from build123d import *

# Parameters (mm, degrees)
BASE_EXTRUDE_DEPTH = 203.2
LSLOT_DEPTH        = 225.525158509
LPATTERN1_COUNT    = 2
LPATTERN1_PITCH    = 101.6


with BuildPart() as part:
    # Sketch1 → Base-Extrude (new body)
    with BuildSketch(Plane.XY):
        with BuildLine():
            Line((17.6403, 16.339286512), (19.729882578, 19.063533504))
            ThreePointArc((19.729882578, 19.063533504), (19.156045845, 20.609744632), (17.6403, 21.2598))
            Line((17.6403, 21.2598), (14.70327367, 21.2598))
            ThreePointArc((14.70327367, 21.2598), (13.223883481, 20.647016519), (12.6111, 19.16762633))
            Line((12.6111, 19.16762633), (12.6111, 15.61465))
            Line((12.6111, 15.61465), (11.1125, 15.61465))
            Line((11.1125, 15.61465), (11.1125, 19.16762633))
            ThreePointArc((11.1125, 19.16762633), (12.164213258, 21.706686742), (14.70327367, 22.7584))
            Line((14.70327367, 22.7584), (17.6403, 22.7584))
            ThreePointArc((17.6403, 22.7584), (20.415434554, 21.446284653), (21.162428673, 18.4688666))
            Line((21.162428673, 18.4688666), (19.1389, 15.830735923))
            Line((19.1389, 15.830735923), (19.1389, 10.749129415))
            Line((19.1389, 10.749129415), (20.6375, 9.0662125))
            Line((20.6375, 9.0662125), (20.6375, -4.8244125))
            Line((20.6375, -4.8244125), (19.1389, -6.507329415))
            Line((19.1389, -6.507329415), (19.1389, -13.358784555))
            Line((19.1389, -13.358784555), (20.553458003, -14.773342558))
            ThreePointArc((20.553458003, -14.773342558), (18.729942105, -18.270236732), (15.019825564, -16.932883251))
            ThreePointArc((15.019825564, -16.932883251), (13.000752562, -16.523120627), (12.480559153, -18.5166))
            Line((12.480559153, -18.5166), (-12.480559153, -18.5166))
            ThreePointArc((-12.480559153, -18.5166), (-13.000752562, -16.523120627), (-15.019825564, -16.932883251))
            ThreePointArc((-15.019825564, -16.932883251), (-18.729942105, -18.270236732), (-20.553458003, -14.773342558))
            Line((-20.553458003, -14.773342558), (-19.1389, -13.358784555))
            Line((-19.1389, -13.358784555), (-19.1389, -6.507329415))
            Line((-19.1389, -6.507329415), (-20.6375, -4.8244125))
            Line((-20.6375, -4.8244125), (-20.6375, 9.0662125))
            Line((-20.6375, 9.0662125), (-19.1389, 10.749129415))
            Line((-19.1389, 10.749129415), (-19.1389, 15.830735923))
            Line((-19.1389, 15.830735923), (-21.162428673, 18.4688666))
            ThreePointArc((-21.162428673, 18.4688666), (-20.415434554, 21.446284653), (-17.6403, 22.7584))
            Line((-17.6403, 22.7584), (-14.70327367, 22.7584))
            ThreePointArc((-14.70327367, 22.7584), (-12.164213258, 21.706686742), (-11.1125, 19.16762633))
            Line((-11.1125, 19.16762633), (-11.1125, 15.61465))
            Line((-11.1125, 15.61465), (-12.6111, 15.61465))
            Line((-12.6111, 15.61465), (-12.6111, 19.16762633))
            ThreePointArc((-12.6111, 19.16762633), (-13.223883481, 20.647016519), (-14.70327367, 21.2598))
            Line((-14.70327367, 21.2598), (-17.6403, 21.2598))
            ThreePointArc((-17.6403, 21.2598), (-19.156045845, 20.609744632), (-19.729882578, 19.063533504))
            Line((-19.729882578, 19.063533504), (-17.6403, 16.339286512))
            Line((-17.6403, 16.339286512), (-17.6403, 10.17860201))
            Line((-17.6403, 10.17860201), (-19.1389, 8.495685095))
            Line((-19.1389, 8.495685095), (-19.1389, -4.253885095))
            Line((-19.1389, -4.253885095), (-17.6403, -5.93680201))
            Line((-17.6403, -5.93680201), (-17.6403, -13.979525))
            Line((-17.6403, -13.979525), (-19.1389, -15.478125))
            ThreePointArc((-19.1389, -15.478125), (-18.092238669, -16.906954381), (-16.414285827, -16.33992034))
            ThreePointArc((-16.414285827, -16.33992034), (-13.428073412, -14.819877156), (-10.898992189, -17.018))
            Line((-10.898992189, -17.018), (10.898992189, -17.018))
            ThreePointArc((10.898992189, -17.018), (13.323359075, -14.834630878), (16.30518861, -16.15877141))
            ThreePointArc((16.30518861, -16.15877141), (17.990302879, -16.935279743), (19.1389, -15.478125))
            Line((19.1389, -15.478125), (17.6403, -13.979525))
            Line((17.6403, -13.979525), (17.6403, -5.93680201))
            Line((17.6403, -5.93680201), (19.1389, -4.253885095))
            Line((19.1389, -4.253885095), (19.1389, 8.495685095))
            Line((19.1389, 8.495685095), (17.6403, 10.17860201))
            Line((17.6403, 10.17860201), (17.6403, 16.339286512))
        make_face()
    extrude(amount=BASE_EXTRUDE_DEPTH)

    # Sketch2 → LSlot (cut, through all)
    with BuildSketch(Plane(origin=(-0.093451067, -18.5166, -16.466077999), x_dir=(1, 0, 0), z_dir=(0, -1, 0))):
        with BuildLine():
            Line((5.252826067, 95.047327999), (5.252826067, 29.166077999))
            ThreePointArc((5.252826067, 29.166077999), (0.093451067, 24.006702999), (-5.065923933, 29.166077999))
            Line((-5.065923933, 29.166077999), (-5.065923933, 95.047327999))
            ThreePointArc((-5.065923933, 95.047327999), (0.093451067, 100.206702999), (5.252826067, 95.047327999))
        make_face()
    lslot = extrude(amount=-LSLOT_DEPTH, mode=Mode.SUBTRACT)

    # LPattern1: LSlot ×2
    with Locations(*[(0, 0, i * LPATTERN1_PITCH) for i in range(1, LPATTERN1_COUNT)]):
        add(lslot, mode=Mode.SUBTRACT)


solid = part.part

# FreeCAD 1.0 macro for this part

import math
import FreeCAD as App
import Part
import Sketcher
Q = App.Units.Quantity

doc = App.newDocument("Part")
body = doc.addObject("PartDesign::Body", "Body")

sketch1 = body.newObject("Sketcher::SketchObject", "Sketch")
sketch1.AttachmentSupport = (doc.getObject("XY_Plane"), [""])
sketch1.MapMode = "FlatFace"
sketch1.addGeometry([
    Part.LineSegment(App.Vector(19.7, 19.1, 0), App.Vector(17.6, 16.3, 0)),
    Part.LineSegment(App.Vector(17.6, 16.3, 0), App.Vector(17.6, 10.2, 0)),
    Part.LineSegment(App.Vector(17.6, 10.2, 0), App.Vector(19.1, 8.5, 0)),
    Part.LineSegment(App.Vector(19.1, 8.5, 0), App.Vector(19.1, -4.3, 0)),
    Part.LineSegment(App.Vector(19.1, -4.3, 0), App.Vector(17.6, -5.9, 0)),
    Part.LineSegment(App.Vector(17.6, -5.9, 0), App.Vector(17.6, -14, 0)),
    Part.LineSegment(App.Vector(17.6, -14, 0), App.Vector(19.1, -15.5, 0)),
    Part.ArcOfCircle(Part.Circle(App.Vector(17.6, -15.5, 0), App.Vector(0, 0, 1), 1.5), math.radians(-153), math.radians(0)),
    Part.ArcOfCircle(Part.Circle(App.Vector(13.8, -17.8, 0), App.Vector(0, 0, 1), 3), math.radians(33), math.radians(165)),
    Part.LineSegment(App.Vector(10.9, -17, 0), App.Vector(-10.9, -17, 0)),
    Part.ArcOfCircle(Part.Circle(App.Vector(-13.8, -17.8, 0), App.Vector(0, 0, 1), 3), math.radians(15), math.radians(151)),
    Part.ArcOfCircle(Part.Circle(App.Vector(-17.6, -15.5, 0), App.Vector(0, 0, 1), 1.5), math.radians(180), math.radians(325)),
    Part.LineSegment(App.Vector(-19.1, -15.5, 0), App.Vector(-17.6, -14, 0)),
    Part.LineSegment(App.Vector(-17.6, -14, 0), App.Vector(-17.6, -5.9, 0)),
    Part.LineSegment(App.Vector(-17.6, -5.9, 0), App.Vector(-19.1, -4.3, 0)),
    Part.LineSegment(App.Vector(-19.1, -4.3, 0), App.Vector(-19.1, 8.5, 0)),
    Part.LineSegment(App.Vector(-19.1, 8.5, 0), App.Vector(-17.6, 10.2, 0)),
    Part.LineSegment(App.Vector(-17.6, 10.2, 0), App.Vector(-17.6, 16.3, 0)),
    Part.LineSegment(App.Vector(-17.6, 16.3, 0), App.Vector(-19.7, 19.1, 0)),
    Part.ArcOfCircle(Part.Circle(App.Vector(-17.6, 19.2, 0), App.Vector(0, 0, 1), 2.1), math.radians(90), math.radians(183)),
    Part.LineSegment(App.Vector(-17.6, 21.3, 0), App.Vector(-14.7, 21.3, 0)),
    Part.ArcOfCircle(Part.Circle(App.Vector(-14.7, 19.2, 0), App.Vector(0, 0, 1), 2.1), math.radians(0), math.radians(90)),
    Part.LineSegment(App.Vector(-12.6, 19.2, 0), App.Vector(-12.6, 15.6, 0)),
    Part.LineSegment(App.Vector(-12.6, 15.6, 0), App.Vector(-11.1, 15.6, 0)),
    Part.LineSegment(App.Vector(-11.1, 15.6, 0), App.Vector(-11.1, 19.2, 0)),
    Part.ArcOfCircle(Part.Circle(App.Vector(-14.7, 19.2, 0), App.Vector(0, 0, 1), 3.6), math.radians(0), math.radians(90)),
    Part.LineSegment(App.Vector(-14.7, 22.8, 0), App.Vector(-17.6, 22.8, 0)),
    Part.ArcOfCircle(Part.Circle(App.Vector(-17.6, 19.2, 0), App.Vector(0, 0, 1), 3.6), math.radians(90), math.radians(191)),
    Part.LineSegment(App.Vector(-21.2, 18.5, 0), App.Vector(-19.1, 15.8, 0)),
    Part.LineSegment(App.Vector(-19.1, 15.8, 0), App.Vector(-19.1, 10.7, 0)),
    Part.LineSegment(App.Vector(-19.1, 10.7, 0), App.Vector(-20.6, 9.1, 0)),
    Part.LineSegment(App.Vector(-20.6, 9.1, 0), App.Vector(-20.6, -4.8, 0)),
    Part.LineSegment(App.Vector(-20.6, -4.8, 0), App.Vector(-19.1, -6.5, 0)),
    Part.LineSegment(App.Vector(-19.1, -6.5, 0), App.Vector(-19.1, -13.4, 0)),
    Part.LineSegment(App.Vector(-19.1, -13.4, 0), App.Vector(-20.6, -14.8, 0)),
    Part.ArcOfCircle(Part.Circle(App.Vector(-17.6, -15.5, 0), App.Vector(0, 0, 1), 3), math.radians(166), math.radians(331)),
    Part.ArcOfCircle(Part.Circle(App.Vector(-13.8, -17.8, 0), App.Vector(0, 0, 1), 1.5), math.radians(-29), math.radians(145)),
    Part.LineSegment(App.Vector(-12.5, -18.5, 0), App.Vector(12.5, -18.5, 0)),
    Part.ArcOfCircle(Part.Circle(App.Vector(13.8, -17.8, 0), App.Vector(0, 0, 1), 1.5), math.radians(35), math.radians(209)),
    Part.ArcOfCircle(Part.Circle(App.Vector(17.6, -15.5, 0), App.Vector(0, 0, 1), 3), math.radians(-151), math.radians(14)),
    Part.LineSegment(App.Vector(20.6, -14.8, 0), App.Vector(19.1, -13.4, 0)),
    Part.LineSegment(App.Vector(19.1, -13.4, 0), App.Vector(19.1, -6.5, 0)),
    Part.LineSegment(App.Vector(19.1, -6.5, 0), App.Vector(20.6, -4.8, 0)),
    Part.LineSegment(App.Vector(20.6, -4.8, 0), App.Vector(20.6, 9.1, 0)),
    Part.LineSegment(App.Vector(20.6, 9.1, 0), App.Vector(19.1, 10.7, 0)),
    Part.LineSegment(App.Vector(19.1, 10.7, 0), App.Vector(19.1, 15.8, 0)),
    Part.LineSegment(App.Vector(19.1, 15.8, 0), App.Vector(21.2, 18.5, 0)),
    Part.ArcOfCircle(Part.Circle(App.Vector(17.6, 19.2, 0), App.Vector(0, 0, 1), 3.6), math.radians(-11), math.radians(90)),
    Part.LineSegment(App.Vector(17.6, 22.8, 0), App.Vector(14.7, 22.8, 0)),
    Part.ArcOfCircle(Part.Circle(App.Vector(14.7, 19.2, 0), App.Vector(0, 0, 1), 3.6), math.radians(90), math.radians(180)),
    Part.LineSegment(App.Vector(11.1, 19.2, 0), App.Vector(11.1, 15.6, 0)),
    Part.LineSegment(App.Vector(11.1, 15.6, 0), App.Vector(12.6, 15.6, 0)),
    Part.LineSegment(App.Vector(12.6, 15.6, 0), App.Vector(12.6, 19.2, 0)),
    Part.ArcOfCircle(Part.Circle(App.Vector(14.7, 19.2, 0), App.Vector(0, 0, 1), 2.1), math.radians(90), math.radians(180)),
    Part.LineSegment(App.Vector(14.7, 21.3, 0), App.Vector(17.6, 21.3, 0)),
    Part.ArcOfCircle(Part.Circle(App.Vector(17.6, 19.2, 0), App.Vector(0, 0, 1), 2.1), math.radians(-3), math.radians(90)),
], False)
sketch1.addConstraint([
    Sketcher.Constraint("Coincident", 0, 2, 1, 1),
    Sketcher.Constraint("Coincident", 1, 2, 2, 1),
    Sketcher.Constraint("Coincident", 2, 2, 3, 1),
    Sketcher.Constraint("Coincident", 3, 2, 4, 1),
    Sketcher.Constraint("Coincident", 4, 2, 5, 1),
    Sketcher.Constraint("Coincident", 5, 2, 6, 1),
    Sketcher.Constraint("Coincident", 6, 2, 7, 2),
    Sketcher.Constraint("Coincident", 7, 1, 8, 1),
    Sketcher.Constraint("Coincident", 8, 2, 9, 1),
    Sketcher.Constraint("Coincident", 9, 2, 10, 1),
    Sketcher.Constraint("Coincident", 10, 2, 11, 2),
    Sketcher.Constraint("Coincident", 11, 1, 12, 1),
    Sketcher.Constraint("Coincident", 12, 2, 13, 1),
    Sketcher.Constraint("Coincident", 13, 2, 14, 1),
    Sketcher.Constraint("Coincident", 14, 2, 15, 1),
    Sketcher.Constraint("Coincident", 15, 2, 16, 1),
    Sketcher.Constraint("Coincident", 16, 2, 17, 1),
    Sketcher.Constraint("Coincident", 17, 2, 18, 1),
    Sketcher.Constraint("Coincident", 18, 2, 19, 2),
    Sketcher.Constraint("Tangent", 19, 1, 20, 1),
    Sketcher.Constraint("Tangent", 20, 2, 21, 2),
    Sketcher.Constraint("Tangent", 21, 1, 22, 1),
    Sketcher.Constraint("Coincident", 22, 2, 23, 1),
    Sketcher.Constraint("Coincident", 23, 2, 24, 1),
    Sketcher.Constraint("Tangent", 24, 2, 25, 1),
    Sketcher.Constraint("Tangent", 25, 2, 26, 1),
    Sketcher.Constraint("Tangent", 26, 2, 27, 1),
    Sketcher.Constraint("Coincident", 27, 2, 28, 1),
    Sketcher.Constraint("Coincident", 28, 2, 29, 1),
    Sketcher.Constraint("Coincident", 29, 2, 30, 1),
    Sketcher.Constraint("Coincident", 30, 2, 31, 1),
    Sketcher.Constraint("Coincident", 31, 2, 32, 1),
    Sketcher.Constraint("Coincident", 32, 2, 33, 1),
    Sketcher.Constraint("Coincident", 33, 2, 34, 1),
    Sketcher.Constraint("Coincident", 34, 2, 35, 1),
    Sketcher.Constraint("Coincident", 35, 2, 36, 2),
    Sketcher.Constraint("Coincident", 36, 1, 37, 1),
    Sketcher.Constraint("Coincident", 37, 2, 38, 2),
    Sketcher.Constraint("Coincident", 38, 1, 39, 1),
    Sketcher.Constraint("Coincident", 39, 2, 40, 1),
    Sketcher.Constraint("Coincident", 40, 2, 41, 1),
    Sketcher.Constraint("Coincident", 41, 2, 42, 1),
    Sketcher.Constraint("Coincident", 42, 2, 43, 1),
    Sketcher.Constraint("Coincident", 43, 2, 44, 1),
    Sketcher.Constraint("Coincident", 44, 2, 45, 1),
    Sketcher.Constraint("Coincident", 45, 2, 46, 1),
    Sketcher.Constraint("Coincident", 46, 2, 47, 1),
    Sketcher.Constraint("Tangent", 47, 2, 48, 1),
    Sketcher.Constraint("Tangent", 48, 2, 49, 1),
    Sketcher.Constraint("Tangent", 49, 2, 50, 1),
    Sketcher.Constraint("Coincident", 50, 2, 51, 1),
    Sketcher.Constraint("Coincident", 51, 2, 52, 1),
    Sketcher.Constraint("Tangent", 52, 2, 53, 2),
    Sketcher.Constraint("Tangent", 53, 1, 54, 1),
    Sketcher.Constraint("Tangent", 54, 2, 55, 2),
    Sketcher.Constraint("Coincident", 55, 1, 0, 1),
    Sketcher.Constraint("Vertical", 1),
    Sketcher.Constraint("Vertical", 3),
    Sketcher.Constraint("Vertical", 5),
    Sketcher.Constraint("Horizontal", 9),
    Sketcher.Constraint("Vertical", 13),
    Sketcher.Constraint("Vertical", 15),
    Sketcher.Constraint("Vertical", 17),
    Sketcher.Constraint("Horizontal", 20),
    Sketcher.Constraint("Vertical", 22),
    Sketcher.Constraint("Horizontal", 23),
    Sketcher.Constraint("Vertical", 24),
    Sketcher.Constraint("Horizontal", 26),
    Sketcher.Constraint("Vertical", 29),
    Sketcher.Constraint("Vertical", 31),
    Sketcher.Constraint("Vertical", 33),
    Sketcher.Constraint("Horizontal", 37),
    Sketcher.Constraint("Vertical", 41),
    Sketcher.Constraint("Vertical", 43),
    Sketcher.Constraint("Vertical", 45),
    Sketcher.Constraint("Horizontal", 48),
    Sketcher.Constraint("Vertical", 50),
    Sketcher.Constraint("Horizontal", 51),
    Sketcher.Constraint("Vertical", 52),
    Sketcher.Constraint("Horizontal", 54),
    Sketcher.Constraint("Coincident", 25, 3, 21, 3),
    Sketcher.Constraint("Coincident", 27, 3, 19, 3),
    Sketcher.Constraint("Coincident", 35, 3, 11, 3),
    Sketcher.Constraint("Coincident", 36, 3, 10, 3),
    Sketcher.Constraint("Coincident", 38, 3, 8, 3),
    Sketcher.Constraint("Coincident", 39, 3, 7, 3),
    Sketcher.Constraint("Coincident", 53, 3, 49, 3),
    Sketcher.Constraint("Coincident", 55, 3, 47, 3),
    Sketcher.Constraint("Equal", 8, 10),
    Sketcher.Constraint("Equal", 7, 11),
    Sketcher.Constraint("Equal", 19, 21),
    Sketcher.Constraint("Equal", 10, 35),
    Sketcher.Constraint("Equal", 11, 36),
    Sketcher.Constraint("Equal", 36, 38),
    Sketcher.Constraint("Equal", 35, 39),
    Sketcher.Constraint("Equal", 27, 47),
    Sketcher.Constraint("Equal", 47, 49),
    Sketcher.Constraint("Equal", 21, 53),
    Sketcher.Constraint("Symmetric", 8, 3, 10, 3, -2),
    Sketcher.Constraint("Symmetric", 7, 3, 11, 3, -2),
    Sketcher.Constraint("Symmetric", 19, 3, 47, 3, -2),
    Sketcher.Constraint("Symmetric", 5, 2, 12, 2, -2),
    Sketcher.Constraint("Symmetric", 3, 2, 14, 2, -2),
    Sketcher.Constraint("Symmetric", 1, 2, 16, 2, -2),
    Sketcher.Constraint("Symmetric", 33, 2, 40, 2, -2),
    Sketcher.Constraint("Symmetric", 31, 2, 42, 2, -2),
    Sketcher.Constraint("Symmetric", 29, 2, 44, 2, -2),
    Sketcher.Constraint("Symmetric", 23, 2, 50, 2, -2),
    Sketcher.Constraint("Perpendicular", 6, 12),
    Sketcher.Constraint("Parallel", 2, 14),
    Sketcher.Constraint("Parallel", 4, 16),
    Sketcher.Constraint("Parallel", 18, 28),
    Sketcher.Constraint("Parallel", 16, 30),
    Sketcher.Constraint("Parallel", 14, 32),
    Sketcher.Constraint("Parallel", 12, 34),
    Sketcher.Constraint("Perpendicular", 34, 40),
    Sketcher.Constraint("Parallel", 30, 42),
    Sketcher.Constraint("Parallel", 32, 44),
    Sketcher.Constraint("Parallel", 0, 46),
    Sketcher.Constraint("Horizontal", 39, 3, 6, 2),
    Sketcher.Constraint("Horizontal", 6, 2, 11, 1),
    Sketcher.Constraint("Horizontal", 4, 2, 13, 2),
    Sketcher.Constraint("Horizontal", 0, 2, 17, 2),
    Sketcher.Constraint("Horizontal", 28, 2, 45, 2),
    Sketcher.Constraint("Horizontal", 27, 2, 46, 2),
    Sketcher.Constraint("Vertical", 11, 3, 19, 3),
    Sketcher.Constraint("Vertical", 55, 3, 0, 2),
    Sketcher.Constraint("Vertical", 1, 2, 4, 2),
    Sketcher.Constraint("Vertical", 3, 2, 6, 2),
    Sketcher.Constraint("Vertical", 15, 2, 28, 2),
    Sketcher.Constraint("Vertical", 29, 2, 32, 2),
    Sketcher.Constraint("Equal", 16, 30),
    Sketcher.Constraint("Radius", 7, Q("0.059 in")),
    Sketcher.Constraint("Radius", 8, Q("0.118 in")),
    Sketcher.Constraint("DistanceX", 23, 1, 23, 2, Q("0.059 in")),
    Sketcher.Constraint("DistanceY", 31, 2, 31, 1, Q("0.546875 in")),
    Sketcher.Constraint("DistanceY", 8, 2, -1, 1, Q("0.67 in")),
    Sketcher.Constraint("DistanceY", 7, 3, -1, 1, Q("0.609375 in")),
    Sketcher.Constraint("DistanceY", -1, 1, 19, 1, Q("0.837 in")),
    Sketcher.Constraint("DistanceX", 23, 2, -1, 1, Q("0.4375 in")),
    Sketcher.Constraint("DistanceX", 30, 2, -1, 1, Q("0.8125 in")),
    Sketcher.Constraint("DistanceY", 36, 1, -1, 1, Q("0.729 in")),
    Sketcher.Constraint("Radius", 19, Q("2.092174 mm")),
    Sketcher.Constraint("DistanceX", 37, 1, 37, 2, Q("24.961118 mm")),
    Sketcher.Constraint("DistanceY", 3, 2, 3, 1, Q("12.74957 mm")),
    Sketcher.Constraint("DistanceX", 9, 2, 9, 1, Q("21.797984 mm")),
    Sketcher.Constraint("DistanceY", 1, 2, 1, 1, Q("6.160685 mm")),
    Sketcher.Constraint("DistanceY", 5, 2, 5, 1, Q("8.042723 mm")),
    Sketcher.Constraint("DistanceY", 22, 2, 22, 1, Q("3.552976 mm")),
    Sketcher.Constraint("DistanceY", 29, 2, 29, 1, Q("5.081607 mm")),
    Sketcher.Constraint("DistanceY", 33, 2, 33, 1, Q("6.851455 mm")),
    Sketcher.Constraint("DistanceX", 27, 2, -1, 1, Q("21.162429 mm")),
    Sketcher.Constraint("DistanceY", -1, 1, 29, 2, Q("10.749129 mm")),
    Sketcher.Constraint("DistanceY", 32, 2, -1, 1, Q("6.507329 mm")),
])
pad1 = body.newObject("PartDesign::Pad", "Pad")
pad1.Profile = sketch1
pad1.Length = Q("8 in")

sketch2 = body.newObject("Sketcher::SketchObject", "Sketch001")
sketch2.AttachmentSupport = (doc.getObject("XZ_Plane"), [""])
sketch2.MapMode = "FlatFace"
sketch2.AttachmentOffset = App.Placement(App.Vector(0, 0, 0.729 * 25.4), App.Rotation())
sketch2.addGeometry([
    Part.LineSegment(App.Vector(5, 13, 0), App.Vector(5, 79, 0)),
    Part.ArcOfCircle(Part.Circle(App.Vector(0, 79, 0), App.Vector(0, 0, 1), 5), math.radians(0), math.radians(180)),
    Part.LineSegment(App.Vector(-5, 79, 0), App.Vector(-5, 13, 0)),
    Part.ArcOfCircle(Part.Circle(App.Vector(0, 13, 0), App.Vector(0, 0, 1), 5), math.radians(180), math.radians(360)),
], False)
sketch2.addConstraint([
    Sketcher.Constraint("Tangent", 0, 2, 1, 1),
    Sketcher.Constraint("Tangent", 1, 2, 2, 1),
    Sketcher.Constraint("Tangent", 2, 2, 3, 1),
    Sketcher.Constraint("Tangent", 3, 2, 0, 1),
    Sketcher.Constraint("Vertical", 0),
    Sketcher.Constraint("Vertical", 2),
    Sketcher.Constraint("PointOnObject", 1, 3, -2),
    Sketcher.Constraint("Radius", 1, Q("0.203125 in")),
    Sketcher.Constraint("DistanceY", -1, 1, 3, 3, Q("0.5 in")),
    Sketcher.Constraint("DistanceY", 0, 1, 0, 2, Q("2.59375 in")),
])
pocket1 = body.newObject("PartDesign::Pocket", "Pocket")
pocket1.Profile = sketch2
pocket1.Type = "ThroughAll"
doc.recompute()

linearpattern = body.newObject("PartDesign::LinearPattern", "LinearPattern")
linearpattern.Originals = [pocket1]
linearpattern.Direction = (doc.getObject("Z_Axis"), [""])
linearpattern.Mode = "offset"
linearpattern.Offset = Q("4 in")
linearpattern.Occurrences = 2
body.Tip = linearpattern

doc.recompute()
